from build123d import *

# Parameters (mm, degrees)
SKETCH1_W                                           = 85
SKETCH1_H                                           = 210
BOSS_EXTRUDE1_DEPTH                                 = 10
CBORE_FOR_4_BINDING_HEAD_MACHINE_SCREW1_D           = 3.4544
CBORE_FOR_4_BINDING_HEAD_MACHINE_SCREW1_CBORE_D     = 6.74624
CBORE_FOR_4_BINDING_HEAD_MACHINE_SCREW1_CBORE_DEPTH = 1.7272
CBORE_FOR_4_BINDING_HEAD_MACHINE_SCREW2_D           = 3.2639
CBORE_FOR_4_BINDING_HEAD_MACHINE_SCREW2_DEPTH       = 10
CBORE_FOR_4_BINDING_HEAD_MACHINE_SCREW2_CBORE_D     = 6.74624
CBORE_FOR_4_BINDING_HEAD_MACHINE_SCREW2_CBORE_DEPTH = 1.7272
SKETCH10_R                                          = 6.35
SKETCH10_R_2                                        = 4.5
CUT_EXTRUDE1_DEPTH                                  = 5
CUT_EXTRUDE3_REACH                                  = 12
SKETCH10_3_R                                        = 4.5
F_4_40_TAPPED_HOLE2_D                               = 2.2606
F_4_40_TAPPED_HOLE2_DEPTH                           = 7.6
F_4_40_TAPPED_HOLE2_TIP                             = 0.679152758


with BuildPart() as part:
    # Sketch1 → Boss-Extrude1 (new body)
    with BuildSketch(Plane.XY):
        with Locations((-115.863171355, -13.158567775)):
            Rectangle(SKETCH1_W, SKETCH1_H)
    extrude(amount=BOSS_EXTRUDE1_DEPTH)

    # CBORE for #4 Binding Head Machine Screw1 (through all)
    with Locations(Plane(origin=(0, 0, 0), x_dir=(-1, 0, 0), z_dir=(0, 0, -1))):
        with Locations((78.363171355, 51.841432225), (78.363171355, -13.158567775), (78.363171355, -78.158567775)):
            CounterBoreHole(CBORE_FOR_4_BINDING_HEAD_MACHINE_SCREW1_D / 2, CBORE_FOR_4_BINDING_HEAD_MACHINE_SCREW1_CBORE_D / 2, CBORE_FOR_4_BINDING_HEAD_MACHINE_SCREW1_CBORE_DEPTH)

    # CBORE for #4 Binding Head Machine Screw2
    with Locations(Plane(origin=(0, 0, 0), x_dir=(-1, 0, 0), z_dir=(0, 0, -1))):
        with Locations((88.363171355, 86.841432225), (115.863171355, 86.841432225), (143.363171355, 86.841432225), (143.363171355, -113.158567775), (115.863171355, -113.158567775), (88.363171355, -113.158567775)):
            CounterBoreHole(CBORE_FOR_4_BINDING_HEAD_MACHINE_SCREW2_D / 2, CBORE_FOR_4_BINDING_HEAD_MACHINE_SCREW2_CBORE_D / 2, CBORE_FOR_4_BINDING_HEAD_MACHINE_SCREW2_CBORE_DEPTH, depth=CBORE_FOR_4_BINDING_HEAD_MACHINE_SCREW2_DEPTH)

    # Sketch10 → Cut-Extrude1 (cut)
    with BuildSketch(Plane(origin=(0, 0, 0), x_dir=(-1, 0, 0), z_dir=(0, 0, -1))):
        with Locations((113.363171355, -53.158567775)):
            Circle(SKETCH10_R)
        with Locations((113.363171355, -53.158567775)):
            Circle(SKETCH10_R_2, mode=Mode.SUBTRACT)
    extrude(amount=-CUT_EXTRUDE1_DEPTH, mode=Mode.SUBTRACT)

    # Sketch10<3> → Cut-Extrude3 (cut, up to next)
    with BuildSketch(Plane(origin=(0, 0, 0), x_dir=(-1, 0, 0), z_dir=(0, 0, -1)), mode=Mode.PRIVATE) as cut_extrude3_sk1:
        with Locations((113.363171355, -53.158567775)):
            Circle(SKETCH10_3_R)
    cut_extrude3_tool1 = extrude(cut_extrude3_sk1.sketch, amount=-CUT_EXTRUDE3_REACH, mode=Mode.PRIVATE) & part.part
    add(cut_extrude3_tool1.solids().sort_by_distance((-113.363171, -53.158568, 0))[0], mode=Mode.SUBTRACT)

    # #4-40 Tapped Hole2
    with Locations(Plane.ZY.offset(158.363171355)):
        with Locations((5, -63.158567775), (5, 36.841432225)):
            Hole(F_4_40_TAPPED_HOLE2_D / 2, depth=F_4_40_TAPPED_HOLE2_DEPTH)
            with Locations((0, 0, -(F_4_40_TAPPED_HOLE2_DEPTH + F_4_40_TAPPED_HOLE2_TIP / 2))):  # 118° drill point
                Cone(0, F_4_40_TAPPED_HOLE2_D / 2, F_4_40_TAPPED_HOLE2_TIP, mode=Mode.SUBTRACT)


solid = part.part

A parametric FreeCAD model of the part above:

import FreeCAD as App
import Part
import Sketcher
from FreeCAD import Vector
Q = App.Units.Quantity


def add_polygon(sketch, points):
    """Adds a closed chain of lines whose ends are joined by coincident constraints."""
    first, n = sketch.GeometryCount, len(points)
    for a, b in zip(points, points[1:] + points[:1]):
        sketch.addGeometry(Part.LineSegment(App.Vector(*a, 0), App.Vector(*b, 0)), False)
    for i in range(n):
        sketch.addConstraint(Sketcher.Constraint("Coincident", first + i, 2, first + (i + 1) % n, 1))

doc = App.newDocument("Part")
params = doc.addObject("Spreadsheet::Sheet", "Params")
for row, (alias, value) in enumerate([
    ("sketch1_width", "85 mm"),
    ("sketch1_height", "210 mm"),
    ("pad1_length", "10 mm"),
    ("hole_diameter", "3.4544 mm"),
    ("hole_cbore_diameter", "6.74624 mm"),
    ("hole_cbore_depth", "1.7272 mm"),
    ("hole2_diameter", "3.2639 mm"),
    ("hole2_depth", "10 mm"),
    ("hole2_cbore_diameter", "6.74624 mm"),
    ("hole2_cbore_depth", "1.7272 mm"),
    ("sketch4_diameter", "9 mm"),
    ("sketch4_diameter2", "12.7 mm"),
    ("pocket1_length", "5 mm"),
    ("sketch5_diameter", "9 mm"),
    ("hole3_diameter", "2.2606 mm"),
    ("hole3_depth", "7.6 mm"),
], start=1):
    params.set(f"A{row}", alias)
    params.set(f"B{row}", "=" + value)
    params.setAlias(f"B{row}", alias)

body = doc.addObject("PartDesign::Body", "Body")

# Sketch on XY plane
sketch1 = doc.addObject("Sketcher::SketchObject", "Sketch")
body.addObject(sketch1)
sketch1.AttachmentSupport = (doc.XY_Plane, [""])
sketch1.MapMode = "FlatFace"
add_polygon(sketch1, [(-158, 92), (-158, -118), (-73, -118), (-73, 92)])  # lines 0-3
sketch1.addConstraint([
    Sketcher.Constraint("Vertical", 0),
    Sketcher.Constraint("Horizontal", 1),
    Sketcher.Constraint("Vertical", 2),
    Sketcher.Constraint("Horizontal", 3),
    Sketcher.Constraint("DistanceX", 1, 1, 1, 2, Q("85 mm")),
    Sketcher.Constraint("DistanceY", 0, 2, 0, 1, Q("210 mm")),
    Sketcher.Constraint("DistanceX", 0, 2, -1, 1, Q("158.363171 mm")),
    Sketcher.Constraint("DistanceY", 0, 2, -1, 1, Q("118.158568 mm")),
])
sketch1.setExpression("Constraints[8]", "Params.sketch1_width")
sketch1.setExpression("Constraints[9]", "Params.sketch1_height")
pad1 = doc.addObject("PartDesign::Pad", "Pad")
body.addObject(pad1)
pad1.Profile = sketch1
pad1.setExpression("Length", "Params.pad1_length")

# Sketch on XY plane
sketch2 = doc.addObject("Sketcher::SketchObject", "Sketch001")
body.addObject(sketch2)
sketch2.AttachmentSupport = (doc.XY_Plane, [""])
sketch2.MapMode = "FlatFace"
sketch2.addGeometry([
    Part.Circle(Vector(-78.4, 51.8, 0), Vector(0, 0, 1), 1.7),
    Part.Circle(Vector(-78.4, -13.2, 0), Vector(0, 0, 1), 1.7),
    Part.Circle(Vector(-78.4, -78.2, 0), Vector(0, 0, 1), 1.7),
], False)
sketch2.addConstraint([
    Sketcher.Constraint("Equal", 0, 1),
    Sketcher.Constraint("Equal", 1, 2),
    Sketcher.Constraint("Vertical", 0, 3, 1, 3),
    Sketcher.Constraint("Vertical", 1, 3, 2, 3),
    Sketcher.Constraint("DistanceY", 1, 3, 0, 3, Q("65 mm")),
    Sketcher.Constraint("DistanceY", 2, 3, 1, 3, Q("65 mm")),
    Sketcher.Constraint("Diameter", 0, Q("3.4544 mm")),
    Sketcher.Constraint("DistanceX", 0, 3, -1, 1, Q("78.363171 mm")),
    Sketcher.Constraint("DistanceY", -1, 1, 0, 3, Q("51.841432 mm")),
])
doc.recompute()
hole = doc.addObject("PartDesign::Hole", "Hole")
body.addObject(hole)
hole.Profile = sketch2
hole.ThreadType = "None"
hole.setExpression("Diameter", "Params.hole_diameter")
hole.DepthType = "ThroughAll"
hole.HoleCutType = "Counterbore"
hole.setExpression("HoleCutDiameter", "Params.hole_cbore_diameter")
hole.setExpression("HoleCutDepth", "Params.hole_cbore_depth")
hole.Reversed = True

# Sketch on XY plane
sketch3 = doc.addObject("Sketcher::SketchObject", "Sketch002")
body.addObject(sketch3)
sketch3.AttachmentSupport = (doc.XY_Plane, [""])
sketch3.MapMode = "FlatFace"
sketch3.addGeometry([
    Part.Circle(Vector(-88.4, 86.8, 0), Vector(0, 0, 1), 1.6),  # 0
    Part.Circle(Vector(-115.9, 86.8, 0), Vector(0, 0, 1), 1.6),  # 1
    Part.Circle(Vector(-143.4, 86.8, 0), Vector(0, 0, 1), 1.6),  # 2
    Part.Circle(Vector(-143.4, -113.2, 0), Vector(0, 0, 1), 1.6),  # 3
    Part.Circle(Vector(-115.9, -113.2, 0), Vector(0, 0, 1), 1.6),  # 4
    Part.Circle(Vector(-88.4, -113.2, 0), Vector(0, 0, 1), 1.6),  # 5
], False)
sketch3.addConstraint([
    Sketcher.Constraint("Equal", 0, 1),
    Sketcher.Constraint("Equal", 1, 2),
    Sketcher.Constraint("Equal", 2, 3),
    Sketcher.Constraint("Equal", 3, 4),
    Sketcher.Constraint("Equal", 4, 5),
    Sketcher.Constraint("Horizontal", 0, 3, 1, 3),
    Sketcher.Constraint("Horizontal", 1, 3, 2, 3),
    Sketcher.Constraint("Horizontal", 3, 3, 4, 3),
    Sketcher.Constraint("Horizontal", 4, 3, 5, 3),
    Sketcher.Constraint("Vertical", 2, 3, 3, 3),
    Sketcher.Constraint("Vertical", 1, 3, 4, 3),
    Sketcher.Constraint("Vertical", 0, 3, 5, 3),
    Sketcher.Constraint("DistanceX", 2, 3, 0, 3, Q("55 mm")),
    Sketcher.Constraint("DistanceY", 3, 3, 2, 3, Q("200 mm")),
    Sketcher.Constraint("Diameter", 0, Q("3.2639 mm")),
    Sketcher.Constraint("DistanceX", 1, 3, 0, 3, Q("27.5 mm")),
    Sketcher.Constraint("DistanceX", 0, 3, -1, 1, Q("88.363171 mm")),
    Sketcher.Constraint("DistanceY", -1, 1, 0, 3, Q("86.841432 mm")),
])
doc.recompute()
hole2 = doc.addObject("PartDesign::Hole", "Hole001")
body.addObject(hole2)
hole2.Profile = sketch3
hole2.ThreadType = "None"
hole2.setExpression("Diameter", "Params.hole2_diameter")
hole2.DepthType = "Dimension"
hole2.setExpression("Depth", "Params.hole2_depth")
hole2.DrillPoint = "Flat"
hole2.HoleCutType = "Counterbore"
hole2.setExpression("HoleCutDiameter", "Params.hole2_cbore_diameter")
hole2.setExpression("HoleCutDepth", "Params.hole2_cbore_depth")
hole2.Reversed = True

# Sketch on XY plane
sketch4 = doc.addObject("Sketcher::SketchObject", "Sketch003")
body.addObject(sketch4)
sketch4.AttachmentSupport = (doc.XY_Plane, [""])
sketch4.MapMode = "FlatFace"
sketch4.addGeometry([
    Part.Circle(Vector(-113.4, -53.2, 0), Vector(0, 0, 1), 6.3),
    Part.Circle(Vector(-113.4, -53.2, 0), Vector(0, 0, 1), 4.5),
], False)
sketch4.addConstraint([
    Sketcher.Constraint("Coincident", 1, 3, 0, 3),
    Sketcher.Constraint("Diameter", 1, Q("9 mm")),
    Sketcher.Constraint("Diameter", 0, Q("12.7 mm")),
    Sketcher.Constraint("DistanceX", 0, 3, -1, 1, Q("113.363171 mm")),
    Sketcher.Constraint("DistanceY", 0, 3, -1, 1, Q("53.158568 mm")),
])
sketch4.setExpression("Constraints[1]", "Params.sketch4_diameter")
sketch4.setExpression("Constraints[2]", "Params.sketch4_diameter2")
pocket1 = doc.addObject("PartDesign::Pocket", "Pocket")
body.addObject(pocket1)
pocket1.Profile = sketch4
pocket1.setExpression("Length", "Params.pocket1_length")
pocket1.Reversed = True

# Sketch on XY plane
sketch5 = doc.addObject("Sketcher::SketchObject", "Sketch004")
body.addObject(sketch5)
sketch5.AttachmentSupport = (doc.XY_Plane, [""])
sketch5.MapMode = "FlatFace"
sketch5.addGeometry(Part.Circle(Vector(-113.4, -53.2, 0), Vector(0, 0, 1), 4.5), False)
sketch5.addConstraint([
    Sketcher.Constraint("Diameter", 0, Q("9 mm")),
    Sketcher.Constraint("DistanceX", 0, 3, -1, 1, Q("113.363171 mm")),
    Sketcher.Constraint("DistanceY", 0, 3, -1, 1, Q("53.158568 mm")),
])
sketch5.setExpression("Constraints[0]", "Params.sketch5_diameter")
pocket2 = doc.addObject("PartDesign::Pocket", "Pocket001")
body.addObject(pocket2)
pocket2.Profile = sketch5
pocket2.Type = "UpToFirst"
pocket2.Reversed = True

# Sketch on YZ plane
sketch6 = doc.addObject("Sketcher::SketchObject", "Sketch005")
body.addObject(sketch6)
sketch6.AttachmentSupport = (doc.YZ_Plane, [""])
sketch6.MapMode = "FlatFace"
sketch6.AttachmentOffset = App.Placement(Vector(0, 0, -158.363171), App.Rotation())
sketch6.addGeometry([
    Part.Circle(Vector(-63.2, 5, 0), Vector(0, 0, 1), 1.1),
    Part.Circle(Vector(36.8, 5, 0), Vector(0, 0, 1), 1.1),
], False)
sketch6.addConstraint([
    Sketcher.Constraint("Equal", 0, 1),
    Sketcher.Constraint("Horizontal", 0, 3, 1, 3),
    Sketcher.Constraint("DistanceY", -1, 1, 0, 3, Q("5 mm")),
    Sketcher.Constraint("DistanceX", 0, 3, 1, 3, Q("100 mm")),
    Sketcher.Constraint("Diameter", 0, Q("2.2606 mm")),
    Sketcher.Constraint("DistanceX", 0, 3, -1, 1, Q("63.158568 mm")),
])
doc.recompute()
hole3 = doc.addObject("PartDesign::Hole", "Hole002")
body.addObject(hole3)
hole3.Profile = sketch6
hole3.ThreadType = "None"
hole3.setExpression("Diameter", "Params.hole3_diameter")
hole3.DepthType = "Dimension"
hole3.setExpression("Depth", "Params.hole3_depth")
hole3.DrillPoint = "Angled"
hole3.DrillPointAngle = 118
hole3.Reversed = True

doc.recompute()
